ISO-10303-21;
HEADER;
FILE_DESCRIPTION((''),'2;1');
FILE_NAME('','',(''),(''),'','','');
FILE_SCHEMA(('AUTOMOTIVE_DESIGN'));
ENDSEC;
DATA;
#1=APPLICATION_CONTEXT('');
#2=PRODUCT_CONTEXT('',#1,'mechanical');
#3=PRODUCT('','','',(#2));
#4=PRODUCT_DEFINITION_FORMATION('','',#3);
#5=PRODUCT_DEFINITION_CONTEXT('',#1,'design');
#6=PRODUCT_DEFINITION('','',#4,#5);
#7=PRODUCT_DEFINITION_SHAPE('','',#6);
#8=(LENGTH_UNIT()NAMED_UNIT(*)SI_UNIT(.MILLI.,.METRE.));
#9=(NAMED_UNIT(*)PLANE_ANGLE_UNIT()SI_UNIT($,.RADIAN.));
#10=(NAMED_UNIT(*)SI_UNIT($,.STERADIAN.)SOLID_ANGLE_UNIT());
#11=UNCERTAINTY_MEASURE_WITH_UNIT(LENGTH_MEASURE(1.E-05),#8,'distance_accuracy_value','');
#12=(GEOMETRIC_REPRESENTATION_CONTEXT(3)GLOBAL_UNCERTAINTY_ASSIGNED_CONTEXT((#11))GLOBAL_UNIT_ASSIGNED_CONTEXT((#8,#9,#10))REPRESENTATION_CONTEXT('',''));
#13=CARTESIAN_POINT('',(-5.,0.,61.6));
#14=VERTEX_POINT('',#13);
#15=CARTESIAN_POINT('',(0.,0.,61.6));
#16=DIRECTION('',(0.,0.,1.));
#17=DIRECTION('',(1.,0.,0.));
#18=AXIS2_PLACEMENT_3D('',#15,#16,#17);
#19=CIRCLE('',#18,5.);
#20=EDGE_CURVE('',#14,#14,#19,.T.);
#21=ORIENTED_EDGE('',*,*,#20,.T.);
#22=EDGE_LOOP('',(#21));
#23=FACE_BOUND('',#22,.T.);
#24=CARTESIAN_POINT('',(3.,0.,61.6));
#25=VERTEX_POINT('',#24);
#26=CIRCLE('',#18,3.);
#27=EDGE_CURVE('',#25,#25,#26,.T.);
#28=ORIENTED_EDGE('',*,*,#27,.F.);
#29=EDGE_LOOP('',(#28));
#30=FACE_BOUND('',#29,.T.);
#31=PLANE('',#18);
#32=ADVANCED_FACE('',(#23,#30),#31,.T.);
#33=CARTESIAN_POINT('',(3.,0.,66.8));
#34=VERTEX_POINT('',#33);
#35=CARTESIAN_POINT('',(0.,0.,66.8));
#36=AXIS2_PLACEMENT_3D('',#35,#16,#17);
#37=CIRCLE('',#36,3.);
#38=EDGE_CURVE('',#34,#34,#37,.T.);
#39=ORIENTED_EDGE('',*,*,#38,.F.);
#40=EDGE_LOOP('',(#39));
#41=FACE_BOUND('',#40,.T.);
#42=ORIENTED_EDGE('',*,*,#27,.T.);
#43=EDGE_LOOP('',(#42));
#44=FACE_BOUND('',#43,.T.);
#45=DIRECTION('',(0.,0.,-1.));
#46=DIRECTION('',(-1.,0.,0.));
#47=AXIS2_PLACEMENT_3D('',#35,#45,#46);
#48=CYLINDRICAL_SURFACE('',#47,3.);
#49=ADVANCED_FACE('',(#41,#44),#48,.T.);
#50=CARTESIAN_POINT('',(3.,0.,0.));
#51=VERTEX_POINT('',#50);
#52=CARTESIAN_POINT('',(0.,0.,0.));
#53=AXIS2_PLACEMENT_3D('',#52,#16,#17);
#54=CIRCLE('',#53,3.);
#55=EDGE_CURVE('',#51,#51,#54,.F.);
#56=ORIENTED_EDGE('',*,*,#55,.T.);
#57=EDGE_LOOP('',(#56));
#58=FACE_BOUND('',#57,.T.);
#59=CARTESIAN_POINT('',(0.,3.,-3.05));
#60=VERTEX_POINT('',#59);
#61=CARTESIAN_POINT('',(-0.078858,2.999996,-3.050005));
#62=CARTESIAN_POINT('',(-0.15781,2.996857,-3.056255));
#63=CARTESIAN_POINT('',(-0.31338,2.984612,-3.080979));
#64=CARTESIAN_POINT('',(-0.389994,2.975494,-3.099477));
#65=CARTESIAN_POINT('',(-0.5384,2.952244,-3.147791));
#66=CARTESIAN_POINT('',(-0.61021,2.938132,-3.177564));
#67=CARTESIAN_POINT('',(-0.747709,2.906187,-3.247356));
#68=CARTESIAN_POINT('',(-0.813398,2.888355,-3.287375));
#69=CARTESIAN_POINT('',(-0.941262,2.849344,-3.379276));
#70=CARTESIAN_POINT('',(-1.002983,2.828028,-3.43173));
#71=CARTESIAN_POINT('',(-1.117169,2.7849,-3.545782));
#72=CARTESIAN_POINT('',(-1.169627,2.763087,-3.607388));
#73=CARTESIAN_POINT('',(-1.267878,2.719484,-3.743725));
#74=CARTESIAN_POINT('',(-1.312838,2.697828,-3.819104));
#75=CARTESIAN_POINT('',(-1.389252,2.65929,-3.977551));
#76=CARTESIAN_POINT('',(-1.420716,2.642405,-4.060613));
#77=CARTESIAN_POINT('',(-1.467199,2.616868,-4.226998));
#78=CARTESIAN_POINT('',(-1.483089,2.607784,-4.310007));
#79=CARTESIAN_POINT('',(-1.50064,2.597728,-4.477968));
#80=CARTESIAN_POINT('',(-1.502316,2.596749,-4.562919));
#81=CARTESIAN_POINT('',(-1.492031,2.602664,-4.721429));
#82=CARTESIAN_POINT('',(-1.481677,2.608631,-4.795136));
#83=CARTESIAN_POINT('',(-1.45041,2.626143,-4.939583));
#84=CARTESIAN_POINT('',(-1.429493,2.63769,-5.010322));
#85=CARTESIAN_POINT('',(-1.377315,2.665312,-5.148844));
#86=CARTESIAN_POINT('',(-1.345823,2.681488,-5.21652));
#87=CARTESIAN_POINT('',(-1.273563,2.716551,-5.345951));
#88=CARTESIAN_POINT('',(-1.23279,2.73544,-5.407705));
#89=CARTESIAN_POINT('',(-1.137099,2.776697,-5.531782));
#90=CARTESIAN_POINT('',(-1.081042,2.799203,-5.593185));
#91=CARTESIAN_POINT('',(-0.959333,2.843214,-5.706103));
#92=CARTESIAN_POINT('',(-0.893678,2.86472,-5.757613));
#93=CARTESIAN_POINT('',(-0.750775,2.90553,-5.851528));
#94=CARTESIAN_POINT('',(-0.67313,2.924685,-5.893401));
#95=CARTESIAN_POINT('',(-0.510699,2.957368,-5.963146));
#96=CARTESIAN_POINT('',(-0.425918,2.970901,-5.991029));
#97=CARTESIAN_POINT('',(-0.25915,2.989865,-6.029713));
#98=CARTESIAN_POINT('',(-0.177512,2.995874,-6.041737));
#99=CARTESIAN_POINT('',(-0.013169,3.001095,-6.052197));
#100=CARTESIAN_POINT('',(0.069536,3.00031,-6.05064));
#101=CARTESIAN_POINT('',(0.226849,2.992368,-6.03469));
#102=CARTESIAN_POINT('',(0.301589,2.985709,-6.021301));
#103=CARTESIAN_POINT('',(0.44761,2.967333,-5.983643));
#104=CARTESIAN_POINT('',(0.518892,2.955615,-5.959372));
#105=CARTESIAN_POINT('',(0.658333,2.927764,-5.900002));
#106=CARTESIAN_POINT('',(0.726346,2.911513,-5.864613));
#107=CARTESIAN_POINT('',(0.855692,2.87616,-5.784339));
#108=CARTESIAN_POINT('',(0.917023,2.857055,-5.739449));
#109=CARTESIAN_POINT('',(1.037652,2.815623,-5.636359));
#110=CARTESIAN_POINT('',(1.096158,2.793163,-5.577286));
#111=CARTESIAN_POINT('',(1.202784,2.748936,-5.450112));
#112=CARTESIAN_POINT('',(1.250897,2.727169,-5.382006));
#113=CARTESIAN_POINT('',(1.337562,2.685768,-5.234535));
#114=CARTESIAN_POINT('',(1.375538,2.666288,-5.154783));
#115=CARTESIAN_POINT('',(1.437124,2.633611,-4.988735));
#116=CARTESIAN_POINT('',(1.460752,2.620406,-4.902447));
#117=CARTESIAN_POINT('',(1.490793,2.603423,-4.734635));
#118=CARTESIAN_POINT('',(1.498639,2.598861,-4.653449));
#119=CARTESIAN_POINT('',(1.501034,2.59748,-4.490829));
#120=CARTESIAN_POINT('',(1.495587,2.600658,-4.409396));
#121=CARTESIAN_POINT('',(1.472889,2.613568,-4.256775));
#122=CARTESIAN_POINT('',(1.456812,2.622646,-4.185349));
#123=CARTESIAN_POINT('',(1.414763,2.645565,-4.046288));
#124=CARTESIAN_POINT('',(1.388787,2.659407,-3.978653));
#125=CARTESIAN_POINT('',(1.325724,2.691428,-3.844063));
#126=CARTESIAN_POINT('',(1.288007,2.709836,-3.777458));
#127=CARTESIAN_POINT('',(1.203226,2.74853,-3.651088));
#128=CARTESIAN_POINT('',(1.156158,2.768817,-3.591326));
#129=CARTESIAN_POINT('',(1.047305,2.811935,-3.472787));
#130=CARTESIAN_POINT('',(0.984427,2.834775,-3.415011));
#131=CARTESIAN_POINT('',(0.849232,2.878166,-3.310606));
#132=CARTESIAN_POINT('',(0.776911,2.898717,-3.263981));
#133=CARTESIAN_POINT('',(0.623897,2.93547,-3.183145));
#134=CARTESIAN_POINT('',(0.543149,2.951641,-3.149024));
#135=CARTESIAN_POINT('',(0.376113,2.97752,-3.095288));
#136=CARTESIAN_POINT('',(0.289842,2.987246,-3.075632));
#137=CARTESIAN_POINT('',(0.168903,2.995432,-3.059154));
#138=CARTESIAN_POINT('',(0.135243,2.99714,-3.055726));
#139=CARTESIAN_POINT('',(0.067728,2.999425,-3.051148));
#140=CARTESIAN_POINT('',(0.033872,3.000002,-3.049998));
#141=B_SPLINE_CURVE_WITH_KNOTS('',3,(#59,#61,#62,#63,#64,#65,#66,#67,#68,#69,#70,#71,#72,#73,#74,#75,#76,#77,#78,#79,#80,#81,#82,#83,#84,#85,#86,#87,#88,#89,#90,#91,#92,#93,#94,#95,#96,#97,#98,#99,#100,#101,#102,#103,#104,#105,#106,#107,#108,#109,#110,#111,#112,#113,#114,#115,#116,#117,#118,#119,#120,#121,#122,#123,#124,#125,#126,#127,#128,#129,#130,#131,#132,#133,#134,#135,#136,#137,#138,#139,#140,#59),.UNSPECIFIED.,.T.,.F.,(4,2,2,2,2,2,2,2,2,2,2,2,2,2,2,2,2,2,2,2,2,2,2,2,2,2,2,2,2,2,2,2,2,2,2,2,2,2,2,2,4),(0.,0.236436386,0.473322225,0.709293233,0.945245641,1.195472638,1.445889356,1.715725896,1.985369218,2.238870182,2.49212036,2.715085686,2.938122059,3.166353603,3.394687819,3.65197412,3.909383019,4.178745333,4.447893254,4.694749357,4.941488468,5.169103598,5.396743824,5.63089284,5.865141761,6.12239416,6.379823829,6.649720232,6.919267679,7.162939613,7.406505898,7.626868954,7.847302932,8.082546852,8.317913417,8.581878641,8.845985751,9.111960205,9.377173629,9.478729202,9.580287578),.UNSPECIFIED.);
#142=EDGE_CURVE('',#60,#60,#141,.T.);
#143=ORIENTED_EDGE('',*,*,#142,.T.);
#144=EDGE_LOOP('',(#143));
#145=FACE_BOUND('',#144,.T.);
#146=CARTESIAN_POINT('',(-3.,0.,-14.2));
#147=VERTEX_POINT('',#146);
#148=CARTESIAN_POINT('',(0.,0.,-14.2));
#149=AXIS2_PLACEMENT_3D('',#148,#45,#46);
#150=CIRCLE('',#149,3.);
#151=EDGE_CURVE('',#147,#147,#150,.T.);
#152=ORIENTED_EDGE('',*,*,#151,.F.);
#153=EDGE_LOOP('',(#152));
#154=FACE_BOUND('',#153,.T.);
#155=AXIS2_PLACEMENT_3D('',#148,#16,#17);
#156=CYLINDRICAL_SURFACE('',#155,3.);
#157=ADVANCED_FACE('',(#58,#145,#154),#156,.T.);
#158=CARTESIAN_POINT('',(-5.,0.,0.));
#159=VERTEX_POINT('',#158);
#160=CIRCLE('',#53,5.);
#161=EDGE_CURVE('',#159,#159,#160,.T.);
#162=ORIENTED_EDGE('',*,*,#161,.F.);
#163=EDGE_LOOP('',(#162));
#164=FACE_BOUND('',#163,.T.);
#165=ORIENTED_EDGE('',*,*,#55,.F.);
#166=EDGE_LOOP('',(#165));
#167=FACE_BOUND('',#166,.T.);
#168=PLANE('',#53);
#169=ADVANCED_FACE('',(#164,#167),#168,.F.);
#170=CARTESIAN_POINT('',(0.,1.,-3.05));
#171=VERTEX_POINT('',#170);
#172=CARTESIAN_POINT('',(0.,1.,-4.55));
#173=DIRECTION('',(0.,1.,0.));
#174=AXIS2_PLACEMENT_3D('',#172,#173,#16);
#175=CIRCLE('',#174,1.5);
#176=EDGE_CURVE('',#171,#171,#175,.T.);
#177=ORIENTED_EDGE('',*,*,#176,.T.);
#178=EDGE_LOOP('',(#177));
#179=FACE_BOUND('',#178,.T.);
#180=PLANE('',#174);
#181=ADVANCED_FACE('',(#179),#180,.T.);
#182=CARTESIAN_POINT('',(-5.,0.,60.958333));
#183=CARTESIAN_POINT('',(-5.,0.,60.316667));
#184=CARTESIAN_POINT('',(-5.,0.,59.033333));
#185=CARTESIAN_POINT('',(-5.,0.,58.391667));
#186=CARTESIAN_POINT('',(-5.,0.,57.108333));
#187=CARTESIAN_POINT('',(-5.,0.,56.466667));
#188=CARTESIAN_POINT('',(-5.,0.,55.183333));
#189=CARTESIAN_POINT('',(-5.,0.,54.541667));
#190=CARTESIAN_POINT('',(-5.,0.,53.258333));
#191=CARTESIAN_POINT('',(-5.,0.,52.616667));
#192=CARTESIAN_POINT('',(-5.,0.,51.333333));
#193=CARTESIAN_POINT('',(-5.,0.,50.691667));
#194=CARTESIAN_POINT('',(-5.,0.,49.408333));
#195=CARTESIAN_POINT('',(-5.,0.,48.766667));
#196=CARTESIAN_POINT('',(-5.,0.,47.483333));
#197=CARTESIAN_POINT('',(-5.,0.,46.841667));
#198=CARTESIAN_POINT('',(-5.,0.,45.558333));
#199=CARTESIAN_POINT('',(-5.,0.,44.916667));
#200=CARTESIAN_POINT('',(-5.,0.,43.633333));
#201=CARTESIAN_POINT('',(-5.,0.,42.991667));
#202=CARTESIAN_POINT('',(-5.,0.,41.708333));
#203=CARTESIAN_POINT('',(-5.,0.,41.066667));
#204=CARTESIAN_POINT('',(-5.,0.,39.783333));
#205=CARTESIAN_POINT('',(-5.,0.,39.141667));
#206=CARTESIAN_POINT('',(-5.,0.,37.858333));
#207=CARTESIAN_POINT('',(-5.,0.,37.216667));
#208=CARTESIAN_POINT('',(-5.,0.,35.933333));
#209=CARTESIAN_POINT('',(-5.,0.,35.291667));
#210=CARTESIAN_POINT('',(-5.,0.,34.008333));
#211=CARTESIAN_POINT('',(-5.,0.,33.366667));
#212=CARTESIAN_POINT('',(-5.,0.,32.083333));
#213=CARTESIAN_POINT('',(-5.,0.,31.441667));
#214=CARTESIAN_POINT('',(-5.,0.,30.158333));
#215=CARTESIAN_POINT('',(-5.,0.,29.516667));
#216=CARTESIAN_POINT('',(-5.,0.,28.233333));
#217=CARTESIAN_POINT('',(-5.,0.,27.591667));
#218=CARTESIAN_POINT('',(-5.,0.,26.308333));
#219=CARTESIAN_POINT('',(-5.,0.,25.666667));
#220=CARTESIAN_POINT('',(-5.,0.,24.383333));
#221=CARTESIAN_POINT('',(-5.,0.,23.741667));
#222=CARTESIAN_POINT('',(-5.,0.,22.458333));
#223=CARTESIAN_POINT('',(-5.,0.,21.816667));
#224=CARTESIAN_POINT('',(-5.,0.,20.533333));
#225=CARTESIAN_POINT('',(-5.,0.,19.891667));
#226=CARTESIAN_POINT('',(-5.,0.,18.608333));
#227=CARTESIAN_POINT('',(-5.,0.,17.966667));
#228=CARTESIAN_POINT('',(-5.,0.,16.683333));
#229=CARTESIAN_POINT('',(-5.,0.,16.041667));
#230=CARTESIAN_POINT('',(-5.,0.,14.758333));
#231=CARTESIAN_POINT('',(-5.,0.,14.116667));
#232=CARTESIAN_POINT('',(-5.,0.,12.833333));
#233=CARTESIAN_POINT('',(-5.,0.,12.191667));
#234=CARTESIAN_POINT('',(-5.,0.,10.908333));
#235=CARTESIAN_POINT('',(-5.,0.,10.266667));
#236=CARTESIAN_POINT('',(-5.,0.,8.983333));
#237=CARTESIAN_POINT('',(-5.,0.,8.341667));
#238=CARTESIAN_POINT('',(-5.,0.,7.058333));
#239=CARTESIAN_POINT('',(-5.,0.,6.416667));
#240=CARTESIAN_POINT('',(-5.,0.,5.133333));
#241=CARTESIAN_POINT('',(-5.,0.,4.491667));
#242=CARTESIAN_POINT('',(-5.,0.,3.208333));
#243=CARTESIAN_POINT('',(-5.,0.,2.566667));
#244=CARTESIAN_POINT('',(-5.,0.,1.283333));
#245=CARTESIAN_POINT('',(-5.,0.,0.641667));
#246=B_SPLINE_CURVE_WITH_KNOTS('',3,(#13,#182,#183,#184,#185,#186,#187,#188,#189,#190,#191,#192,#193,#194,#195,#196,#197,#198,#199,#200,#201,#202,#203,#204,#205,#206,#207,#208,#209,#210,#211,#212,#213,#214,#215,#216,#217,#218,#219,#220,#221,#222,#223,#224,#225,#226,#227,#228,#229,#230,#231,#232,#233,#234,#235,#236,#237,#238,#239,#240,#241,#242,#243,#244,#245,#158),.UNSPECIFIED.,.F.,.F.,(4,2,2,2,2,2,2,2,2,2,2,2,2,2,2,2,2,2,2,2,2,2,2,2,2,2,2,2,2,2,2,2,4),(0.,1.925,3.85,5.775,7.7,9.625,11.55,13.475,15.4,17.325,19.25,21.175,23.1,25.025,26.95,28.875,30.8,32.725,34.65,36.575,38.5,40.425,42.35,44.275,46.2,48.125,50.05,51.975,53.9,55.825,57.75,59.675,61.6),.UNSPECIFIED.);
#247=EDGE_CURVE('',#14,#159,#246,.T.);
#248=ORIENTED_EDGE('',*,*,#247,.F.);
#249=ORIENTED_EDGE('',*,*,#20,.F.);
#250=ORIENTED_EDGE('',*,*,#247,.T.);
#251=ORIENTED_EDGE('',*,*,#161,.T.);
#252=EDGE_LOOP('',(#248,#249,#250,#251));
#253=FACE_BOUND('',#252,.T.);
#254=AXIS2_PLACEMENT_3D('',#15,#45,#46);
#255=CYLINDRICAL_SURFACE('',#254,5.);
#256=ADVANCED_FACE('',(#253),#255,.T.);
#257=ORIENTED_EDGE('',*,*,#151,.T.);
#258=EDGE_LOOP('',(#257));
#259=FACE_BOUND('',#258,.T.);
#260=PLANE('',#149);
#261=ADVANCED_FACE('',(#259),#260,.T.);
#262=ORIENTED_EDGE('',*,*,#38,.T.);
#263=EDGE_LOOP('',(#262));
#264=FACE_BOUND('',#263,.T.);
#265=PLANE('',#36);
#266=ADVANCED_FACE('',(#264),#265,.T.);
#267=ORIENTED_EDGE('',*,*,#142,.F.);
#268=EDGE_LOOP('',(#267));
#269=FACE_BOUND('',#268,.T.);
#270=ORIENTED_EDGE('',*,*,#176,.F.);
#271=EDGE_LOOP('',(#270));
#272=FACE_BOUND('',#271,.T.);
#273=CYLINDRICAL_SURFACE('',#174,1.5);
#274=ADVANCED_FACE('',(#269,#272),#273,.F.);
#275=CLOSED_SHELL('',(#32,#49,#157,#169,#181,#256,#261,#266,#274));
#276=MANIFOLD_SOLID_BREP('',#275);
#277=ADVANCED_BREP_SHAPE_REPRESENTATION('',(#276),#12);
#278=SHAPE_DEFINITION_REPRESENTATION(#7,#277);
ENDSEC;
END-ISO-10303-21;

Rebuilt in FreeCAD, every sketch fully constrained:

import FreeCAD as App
import Part
import Sketcher

V = App.Vector
Q = App.Units.Quantity

doc = App.newDocument("Part")
body = doc.addObject("PartDesign::Body", "Body")

# Sketch on XY plane
sketch1 = body.newObject("Sketcher::SketchObject", "Sketch")
sketch1.AttachmentSupport = (doc.getObject("XY_Plane"), [""])
sketch1.MapMode = "FlatFace"
sketch1.addGeometry(Part.Circle(V(0, 0, 0), V(0, 0, 1), 5), False)
sketch1.addConstraint([
    Sketcher.Constraint("Coincident", 0, 3, -1, 1),
    Sketcher.Constraint("Diameter", 0, Q("10 mm")),
])
pad1 = body.newObject("PartDesign::Pad", "Pad")
pad1.Profile = sketch1
pad1.Length = 61.6

# Sketch on XY plane
sketch2 = body.newObject("Sketcher::SketchObject", "Sketch001")
sketch2.AttachmentSupport = (doc.getObject("XY_Plane"), [""])
sketch2.MapMode = "FlatFace"
sketch2.AttachmentOffset = App.Placement(V(0, 0, 61.6), App.Rotation())
sketch2.addGeometry(Part.Circle(V(0, 0, 0), V(0, 0, 1), 3), False)
sketch2.addConstraint([
    Sketcher.Constraint("Coincident", 0, 3, -1, 1),
    Sketcher.Constraint("Diameter", 0, Q("6 mm")),
])
pad2 = body.newObject("PartDesign::Pad", "Pad001")
pad2.Profile = sketch2
pad2.Length = 5.2

# Sketch on XY plane
sketch3 = body.newObject("Sketcher::SketchObject", "Sketch002")
sketch3.AttachmentSupport = (doc.getObject("XY_Plane"), [""])
sketch3.MapMode = "FlatFace"
sketch3.AttachmentOffset = App.Placement(V(0, 0, -14.2), App.Rotation())
sketch3.addGeometry(Part.Circle(V(0, 0, 0), V(0, 0, 1), 3), False)
sketch3.addConstraint([
    Sketcher.Constraint("Coincident", 0, 3, -1, 1),
    Sketcher.Constraint("Diameter", 0, Q("6 mm")),
])
pad3 = body.newObject("PartDesign::Pad", "Pad002")
pad3.Profile = sketch3
pad3.Length = 14.2

# Sketch on XZ plane
sketch4 = body.newObject("Sketcher::SketchObject", "Sketch003")
sketch4.AttachmentSupport = (doc.getObject("XZ_Plane"), [""])
sketch4.MapMode = "FlatFace"
sketch4.AttachmentOffset = App.Placement(V(0, 0, -3), App.Rotation())
sketch4.addGeometry(Part.Circle(V(0, -4.5, 0), V(0, 0, 1), 1.5), False)
sketch4.addConstraint([
    Sketcher.Constraint("PointOnObject", 0, 3, -2),
    Sketcher.Constraint("Diameter", 0, Q("3 mm")),
    Sketcher.Constraint("DistanceY", 0, 3, -1, 1, Q("4.55 mm")),
])
pocket1 = body.newObject("PartDesign::Pocket", "Pocket")
pocket1.Profile = sketch4
pocket1.Length = 2
pocket1.Reversed = True

doc.recompute()
